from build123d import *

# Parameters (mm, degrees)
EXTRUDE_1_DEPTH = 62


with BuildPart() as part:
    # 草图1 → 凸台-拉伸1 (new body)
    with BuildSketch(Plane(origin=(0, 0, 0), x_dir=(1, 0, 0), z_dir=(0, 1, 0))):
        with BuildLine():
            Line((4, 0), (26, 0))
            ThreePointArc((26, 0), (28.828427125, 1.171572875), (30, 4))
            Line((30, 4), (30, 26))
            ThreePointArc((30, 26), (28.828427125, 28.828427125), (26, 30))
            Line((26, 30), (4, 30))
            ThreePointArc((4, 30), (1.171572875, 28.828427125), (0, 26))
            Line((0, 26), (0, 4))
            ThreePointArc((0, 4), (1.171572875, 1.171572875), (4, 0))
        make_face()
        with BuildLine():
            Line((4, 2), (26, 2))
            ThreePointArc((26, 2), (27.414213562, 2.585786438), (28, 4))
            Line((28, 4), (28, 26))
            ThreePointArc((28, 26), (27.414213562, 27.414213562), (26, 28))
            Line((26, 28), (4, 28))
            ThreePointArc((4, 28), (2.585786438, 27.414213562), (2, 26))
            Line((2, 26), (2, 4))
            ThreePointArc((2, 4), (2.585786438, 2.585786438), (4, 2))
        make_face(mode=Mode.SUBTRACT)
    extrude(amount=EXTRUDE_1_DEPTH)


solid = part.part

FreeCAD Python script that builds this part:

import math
import FreeCAD as App
import Part
import Sketcher

V = App.Vector
Q = App.Units.Quantity

doc = App.newDocument("Part")
body = doc.addObject("PartDesign::Body", "Body")

# Sketch on XZ plane
sketch1 = body.newObject("Sketcher::SketchObject", "Sketch")
sketch1.AttachmentSupport = (doc.getObject("XZ_Plane"), [""])
sketch1.MapMode = "FlatFace"
sketch1.addGeometry([
    Part.LineSegment(V(4, 0, 0), V(26, 0, 0)),  # 0
    Part.ArcOfCircle(Part.Circle(V(26, -4, 0), V(0, 0, 1), 4), math.radians(0), math.radians(90)),  # 1
    Part.LineSegment(V(30, -4, 0), V(30, -26, 0)),  # 2
    Part.ArcOfCircle(Part.Circle(V(26, -26, 0), V(0, 0, 1), 4), math.radians(-90), math.radians(0)),  # 3
    Part.LineSegment(V(26, -30, 0), V(4, -30, 0)),  # 4
    Part.ArcOfCircle(Part.Circle(V(4, -26, 0), V(0, 0, 1), 4), math.radians(180), math.radians(270)),  # 5
    Part.LineSegment(V(0, -26, 0), V(0, -4, 0)),  # 6
    Part.ArcOfCircle(Part.Circle(V(4, -4, 0), V(0, 0, 1), 4), math.radians(90), math.radians(180)),  # 7
    Part.LineSegment(V(26, -2, 0), V(4, -2, 0)),  # 8
    Part.ArcOfCircle(Part.Circle(V(4, -4, 0), V(0, 0, 1), 2), math.radians(90), math.radians(180)),  # 9
    Part.LineSegment(V(2, -4, 0), V(2, -26, 0)),  # 10
    Part.ArcOfCircle(Part.Circle(V(4, -26, 0), V(0, 0, 1), 2), math.radians(-180), math.radians(-90)),  # 11
    Part.LineSegment(V(4, -28, 0), V(26, -28, 0)),  # 12
    Part.ArcOfCircle(Part.Circle(V(26, -26, 0), V(0, 0, 1), 2), math.radians(-90), math.radians(0)),  # 13
    Part.LineSegment(V(28, -26, 0), V(28, -4, 0)),  # 14
    Part.ArcOfCircle(Part.Circle(V(26, -4, 0), V(0, 0, 1), 2), math.radians(0), math.radians(90)),  # 15
], False)
sketch1.addConstraint([
    Sketcher.Constraint("Tangent", 0, 2, 1, 2),
    Sketcher.Constraint("Tangent", 1, 1, 2, 1),
    Sketcher.Constraint("Tangent", 2, 2, 3, 2),
    Sketcher.Constraint("Tangent", 3, 1, 4, 1),
    Sketcher.Constraint("Tangent", 4, 2, 5, 2),
    Sketcher.Constraint("Tangent", 5, 1, 6, 1),
    Sketcher.Constraint("Tangent", 6, 2, 7, 2),
    Sketcher.Constraint("Tangent", 7, 1, 0, 1),
    Sketcher.Constraint("Tangent", 8, 2, 9, 1),
    Sketcher.Constraint("Tangent", 9, 2, 10, 1),
    Sketcher.Constraint("Tangent", 10, 2, 11, 1),
    Sketcher.Constraint("Tangent", 11, 2, 12, 1),
    Sketcher.Constraint("Tangent", 12, 2, 13, 1),
    Sketcher.Constraint("Tangent", 13, 2, 14, 1),
    Sketcher.Constraint("Tangent", 14, 2, 15, 1),
    Sketcher.Constraint("Tangent", 15, 2, 8, 1),
    Sketcher.Constraint("Horizontal", 0),
    Sketcher.Constraint("Vertical", 2),
    Sketcher.Constraint("Horizontal", 4),
    Sketcher.Constraint("Vertical", 6),
    Sketcher.Constraint("Horizontal", 8),
    Sketcher.Constraint("Vertical", 10),
    Sketcher.Constraint("Horizontal", 12),
    Sketcher.Constraint("Vertical", 14),
    Sketcher.Constraint("Coincident", 9, 3, 7, 3),
    Sketcher.Constraint("Coincident", 11, 3, 5, 3),
    Sketcher.Constraint("Coincident", 13, 3, 3, 3),
    Sketcher.Constraint("Equal", 1, 3),
    Sketcher.Constraint("Equal", 3, 5),
    Sketcher.Constraint("Equal", 5, 7),
    Sketcher.Constraint("Equal", 13, 15),
    Sketcher.Constraint("PointOnObject", 0, 2, -1),
    Sketcher.Constraint("PointOnObject", 5, 1, -2),
    Sketcher.Constraint("Equal", 12, 2),
    Sketcher.Constraint("Radius", 1, Q("4 mm")),
    Sketcher.Constraint("Radius", 9, Q("2 mm")),
    Sketcher.Constraint("DistanceX", 0, 1, 0, 2, Q("22 mm")),
])
pad1 = body.newObject("PartDesign::Pad", "Pad")
pad1.Profile = sketch1
pad1.Length = 62
pad1.Reversed = True

doc.recompute()
